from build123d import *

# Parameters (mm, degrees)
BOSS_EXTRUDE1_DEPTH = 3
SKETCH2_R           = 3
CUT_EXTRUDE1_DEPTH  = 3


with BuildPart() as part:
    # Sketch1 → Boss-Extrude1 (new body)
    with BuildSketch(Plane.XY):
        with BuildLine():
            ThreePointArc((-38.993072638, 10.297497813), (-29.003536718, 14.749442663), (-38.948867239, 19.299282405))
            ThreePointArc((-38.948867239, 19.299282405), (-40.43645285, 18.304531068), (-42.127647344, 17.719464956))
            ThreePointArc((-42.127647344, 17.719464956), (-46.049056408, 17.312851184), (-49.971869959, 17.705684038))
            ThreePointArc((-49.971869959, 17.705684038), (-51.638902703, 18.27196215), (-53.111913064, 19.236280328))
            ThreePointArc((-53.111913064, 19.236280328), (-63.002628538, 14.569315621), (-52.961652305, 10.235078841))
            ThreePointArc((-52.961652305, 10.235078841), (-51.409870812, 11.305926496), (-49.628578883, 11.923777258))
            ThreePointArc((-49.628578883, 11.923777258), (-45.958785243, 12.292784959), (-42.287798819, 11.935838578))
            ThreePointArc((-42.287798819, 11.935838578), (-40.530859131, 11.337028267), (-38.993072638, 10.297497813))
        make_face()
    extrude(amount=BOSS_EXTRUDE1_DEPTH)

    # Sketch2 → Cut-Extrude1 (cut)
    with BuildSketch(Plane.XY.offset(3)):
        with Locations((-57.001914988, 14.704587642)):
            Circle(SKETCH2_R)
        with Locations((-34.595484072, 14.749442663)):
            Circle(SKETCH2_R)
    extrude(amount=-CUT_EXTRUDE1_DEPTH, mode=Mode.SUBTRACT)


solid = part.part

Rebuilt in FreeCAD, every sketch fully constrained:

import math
import FreeCAD as App
import Part
import Sketcher

V = App.Vector
Q = App.Units.Quantity

doc = App.newDocument("Part")
body = doc.addObject("PartDesign::Body", "Body")

sketch1 = body.newObject("Sketcher::SketchObject", "Sketch")
sketch1.AttachmentSupport = (doc.getObject("XY_Plane"), [""])
sketch1.MapMode = "FlatFace"
sketch1.addGeometry([
    Part.ArcOfCircle(Part.Circle(V(-35.003464, 14.778907, 0), V(0, 0, 1), 6), math.radians(-131.677317), math.radians(131.114592)),
    Part.ArcOfCircle(Part.Circle(V(-43.551837, 24.573054, 0), V(0, 0, 1), 7), math.radians(-78.260888), math.radians(-48.885408)),
    Part.ArcOfCircle(Part.Circle(V(-46.083212, 36.754719, 0), V(0, 0, 1), 19.441898), math.radians(-101.537795), math.radians(-78.260888)),
    Part.ArcOfCircle(Part.Circle(V(-48.57177, 24.564235, 0), V(0, 0, 1), 7), math.radians(-130.43552), math.radians(-101.537795)),
    Part.ArcOfCircle(Part.Circle(V(-57.003464, 14.669462, 0), V(0, 0, 1), 6), math.radians(49.56448), math.radians(312.348266)),
    Part.ArcOfCircle(Part.Circle(V(-48.246205, 5.061632, 0), V(0, 0, 1), 7), math.radians(101.389752), math.radians(132.348266)),
    Part.ArcOfCircle(Part.Circle(V(-45.927996, -6.446025, 0), V(0, 0, 1), 18.738835), math.radians(78.798529), math.radians(101.389752)),
    Part.ArcOfCircle(Part.Circle(V(-43.647616, 5.069187, 0), V(0, 0, 1), 7), math.radians(48.322683), math.radians(78.798529)),
], False)
sketch1.addConstraint([
    Sketcher.Constraint("Tangent", 0, 2, 1, 2),
    Sketcher.Constraint("Tangent", 1, 1, 2, 2),
    Sketcher.Constraint("Tangent", 2, 1, 3, 2),
    Sketcher.Constraint("Tangent", 3, 1, 4, 1),
    Sketcher.Constraint("Tangent", 4, 2, 5, 2),
    Sketcher.Constraint("Tangent", 5, 1, 6, 2),
    Sketcher.Constraint("Tangent", 6, 1, 7, 2),
    Sketcher.Constraint("Tangent", 7, 1, 0, 1),
    Sketcher.Constraint("Equal", 1, 3),
    Sketcher.Constraint("Equal", 0, 4),
    Sketcher.Constraint("Equal", 3, 5),
    Sketcher.Constraint("Equal", 5, 7),
    Sketcher.Constraint("Radius", 0, Q("6 mm")),
    Sketcher.Constraint("Radius", 1, Q("7 mm")),
    Sketcher.Constraint("DistanceX", 4, 3, 0, 3, Q("22 mm")),
    Sketcher.Constraint("Radius", 2, Q("19.441898 mm")),
    Sketcher.Constraint("Radius", 6, Q("18.738835 mm")),
    Sketcher.Constraint("DistanceX", 6, 1, -1, 1, Q("42.287799 mm")),
    Sketcher.Constraint("DistanceX", 2, 1, 3, 3, Q("1.4001 mm")),
    Sketcher.Constraint("DistanceY", 2, 1, 0, 2, Q("1.593598 mm")),
    Sketcher.Constraint("DistanceY", 4, 2, 3, 1, Q("9.001201 mm")),
    Sketcher.Constraint("DistanceY", 4, 2, 5, 1, Q("1.688698 mm")),
    Sketcher.Constraint("DistanceY", -1, 1, 2, 3, Q("36.754719 mm")),
    Sketcher.Constraint("DistanceX", 3, 3, -1, 1, Q("48.57177 mm")),
])
pad1 = body.newObject("PartDesign::Pad", "Pad")
pad1.Profile = sketch1
pad1.Length = 3

sketch2 = body.newObject("Sketcher::SketchObject", "Sketch001")
sketch2.AttachmentSupport = (doc.getObject("XY_Plane"), [""])
sketch2.MapMode = "FlatFace"
sketch2.AttachmentOffset = App.Placement(V(0, 0, 3), App.Rotation())
sketch2.addGeometry([
    Part.Circle(V(-57.001915, 14.704588, 0), V(0, 0, 1), 3),
    Part.Circle(V(-34.595484, 14.749443, 0), V(0, 0, 1), 3),
], False)
sketch2.addConstraint([
    Sketcher.Constraint("Equal", 0, 1),
    Sketcher.Constraint("Diameter", 0, Q("6 mm")),
    Sketcher.Constraint("DistanceX", 0, 3, 1, 3, Q("22.406431 mm")),
    Sketcher.Constraint("DistanceX", 0, 3, -1, 1, Q("57.001915 mm")),
    Sketcher.Constraint("DistanceY", -1, 1, 0, 3, Q("14.704588 mm")),
    Sketcher.Constraint("DistanceY", -1, 1, 1, 3, Q("14.749443 mm")),
])
pocket1 = body.newObject("PartDesign::Pocket", "Pocket")
pocket1.Profile = sketch2
pocket1.Length = 3

doc.recompute()
